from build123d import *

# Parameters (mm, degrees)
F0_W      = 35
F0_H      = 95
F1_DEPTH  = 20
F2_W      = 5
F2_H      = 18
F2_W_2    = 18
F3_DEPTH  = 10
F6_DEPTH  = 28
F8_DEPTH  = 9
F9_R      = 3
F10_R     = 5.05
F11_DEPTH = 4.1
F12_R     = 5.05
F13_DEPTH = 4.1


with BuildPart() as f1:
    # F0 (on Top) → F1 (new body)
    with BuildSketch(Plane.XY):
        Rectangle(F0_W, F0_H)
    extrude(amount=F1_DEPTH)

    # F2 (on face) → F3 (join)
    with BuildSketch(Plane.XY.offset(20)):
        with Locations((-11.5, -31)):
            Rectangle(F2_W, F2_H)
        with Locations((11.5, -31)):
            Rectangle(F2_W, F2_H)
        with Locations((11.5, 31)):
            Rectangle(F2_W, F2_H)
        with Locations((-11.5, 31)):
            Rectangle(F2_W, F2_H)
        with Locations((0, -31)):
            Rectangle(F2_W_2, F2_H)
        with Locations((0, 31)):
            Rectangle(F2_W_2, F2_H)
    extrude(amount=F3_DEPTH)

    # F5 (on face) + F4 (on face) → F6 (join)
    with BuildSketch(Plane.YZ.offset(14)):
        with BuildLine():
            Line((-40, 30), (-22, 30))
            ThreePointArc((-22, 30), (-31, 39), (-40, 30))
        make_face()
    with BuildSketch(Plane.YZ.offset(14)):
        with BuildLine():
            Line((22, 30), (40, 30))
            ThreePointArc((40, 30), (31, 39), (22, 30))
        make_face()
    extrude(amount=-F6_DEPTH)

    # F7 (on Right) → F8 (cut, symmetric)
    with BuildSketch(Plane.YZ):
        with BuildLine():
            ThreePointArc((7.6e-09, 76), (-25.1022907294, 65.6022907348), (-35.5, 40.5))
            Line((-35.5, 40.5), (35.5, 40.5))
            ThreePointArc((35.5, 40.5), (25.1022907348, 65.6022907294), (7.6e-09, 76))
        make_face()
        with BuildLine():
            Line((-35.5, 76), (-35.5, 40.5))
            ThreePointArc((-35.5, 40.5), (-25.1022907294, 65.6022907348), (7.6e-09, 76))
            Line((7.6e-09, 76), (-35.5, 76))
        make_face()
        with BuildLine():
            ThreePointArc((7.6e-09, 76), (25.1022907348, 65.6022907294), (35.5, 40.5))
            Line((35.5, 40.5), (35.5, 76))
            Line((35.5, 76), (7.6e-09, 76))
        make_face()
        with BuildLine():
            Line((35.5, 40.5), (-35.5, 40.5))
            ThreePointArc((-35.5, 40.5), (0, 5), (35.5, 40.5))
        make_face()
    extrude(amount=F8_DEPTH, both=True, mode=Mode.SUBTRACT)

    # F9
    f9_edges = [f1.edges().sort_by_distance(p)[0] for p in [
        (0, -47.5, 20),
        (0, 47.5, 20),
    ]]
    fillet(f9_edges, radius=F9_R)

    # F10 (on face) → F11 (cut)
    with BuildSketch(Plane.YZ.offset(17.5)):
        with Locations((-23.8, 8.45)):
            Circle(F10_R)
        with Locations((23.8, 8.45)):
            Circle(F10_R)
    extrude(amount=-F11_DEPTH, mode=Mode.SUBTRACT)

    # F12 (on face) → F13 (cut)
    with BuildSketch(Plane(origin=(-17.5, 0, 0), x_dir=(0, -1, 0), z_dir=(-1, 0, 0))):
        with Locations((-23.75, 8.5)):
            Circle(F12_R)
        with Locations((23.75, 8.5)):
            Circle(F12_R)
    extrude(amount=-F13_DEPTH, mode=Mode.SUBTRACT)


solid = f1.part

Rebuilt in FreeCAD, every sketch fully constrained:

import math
import FreeCAD as App
import Part
import Sketcher
Q = App.Units.Quantity


def edges_at(feature, points):
    """Names of the edges that pass closest to the given points."""
    edges = feature.Shape.Edges
    near = lambda p: min(range(len(edges)), key=lambda i: edges[i].distToShape(Part.Vertex(*p))[0])
    return sorted({f"Edge{near(p) + 1}" for p in points})


def add_polygon(sketch, points):
    """Adds a closed chain of lines whose ends are joined by coincident constraints."""
    first, n = sketch.GeometryCount, len(points)
    for a, b in zip(points, points[1:] + points[:1]):
        sketch.addGeometry(Part.LineSegment(App.Vector(*a, 0), App.Vector(*b, 0)), False)
    for i in range(n):
        sketch.addConstraint(Sketcher.Constraint("Coincident", first + i, 2, first + (i + 1) % n, 1))

doc = App.newDocument("Part")
body = doc.addObject("PartDesign::Body", "Body")

# Sketch on XY plane
sketch1 = body.newObject("Sketcher::SketchObject", "Sketch")
sketch1.AttachmentSupport = (doc.getObject("XY_Plane"), [""])
sketch1.MapMode = "FlatFace"
add_polygon(sketch1, [(-18, 48), (-18, -48), (18, -48), (18, 48)])  # lines 0-3
sketch1.addConstraint(Sketcher.Constraint("Vertical", 0))
sketch1.addConstraint(Sketcher.Constraint("Horizontal", 1))
sketch1.addConstraint(Sketcher.Constraint("Vertical", 2))
sketch1.addConstraint(Sketcher.Constraint("Horizontal", 3))
sketch1.addConstraint(Sketcher.Constraint("Symmetric", 0, 2, 2, 2, -1, 1))
sketch1.addConstraint(Sketcher.Constraint("DistanceX", 1, 1, 1, 2, Q("35 mm")))
sketch1.addConstraint(Sketcher.Constraint("DistanceY", 0, 2, 0, 1, Q("95 mm")))
pad1 = body.newObject("PartDesign::Pad", "Pad")
pad1.Profile = sketch1
pad1.Length = 20

# Sketch on XY plane
sketch2 = body.newObject("Sketcher::SketchObject", "Sketch001")
sketch2.AttachmentSupport = (doc.getObject("XY_Plane"), [""])
sketch2.MapMode = "FlatFace"
sketch2.AttachmentOffset = App.Placement(App.Vector(0, 0, 20), App.Rotation())
add_polygon(sketch2, [(-14, -22), (-14, -40), (14, -40), (14, -22)])  # lines 0-3
add_polygon(sketch2, [(14, 22), (14, 40), (-14, 40), (-14, 22)])  # lines 4-7
sketch2.addConstraint(Sketcher.Constraint("Vertical", 0))
sketch2.addConstraint(Sketcher.Constraint("Horizontal", 1))
sketch2.addConstraint(Sketcher.Constraint("Vertical", 2))
sketch2.addConstraint(Sketcher.Constraint("Horizontal", 3))
sketch2.addConstraint(Sketcher.Constraint("Vertical", 4))
sketch2.addConstraint(Sketcher.Constraint("Horizontal", 5))
sketch2.addConstraint(Sketcher.Constraint("Vertical", 6))
sketch2.addConstraint(Sketcher.Constraint("Horizontal", 7))
sketch2.addConstraint(Sketcher.Constraint("Symmetric", 0, 2, 4, 2, -1, 1))
sketch2.addConstraint(Sketcher.Constraint("Symmetric", 2, 2, 6, 2, -1, 1))
sketch2.addConstraint(Sketcher.Constraint("Vertical", 2, 2, 4, 2))
sketch2.addConstraint(Sketcher.Constraint("DistanceX", 1, 1, 1, 2, Q("28 mm")))
sketch2.addConstraint(Sketcher.Constraint("DistanceY", 0, 2, 0, 1, Q("18 mm")))
sketch2.addConstraint(Sketcher.Constraint("DistanceY", 0, 2, -1, 1, Q("40 mm")))
pad2 = body.newObject("PartDesign::Pad", "Pad001")
pad2.Profile = sketch2
pad2.Length = 10

# Sketch on YZ plane
sketch3 = body.newObject("Sketcher::SketchObject", "Sketch002")
sketch3.AttachmentSupport = (doc.getObject("YZ_Plane"), [""])
sketch3.MapMode = "FlatFace"
sketch3.AttachmentOffset = App.Placement(App.Vector(0, 0, 14), App.Rotation())
sketch3.addGeometry(Part.LineSegment(App.Vector(-40, 30, 0), App.Vector(-22, 30, 0)), False)
sketch3.addGeometry(Part.ArcOfCircle(Part.Circle(App.Vector(-31, 30, 0), App.Vector(0, 0, 1), 9), math.radians(0), math.radians(180)), False)
sketch3.addGeometry(Part.LineSegment(App.Vector(22, 30, 0), App.Vector(40, 30, 0)), False)
sketch3.addGeometry(Part.ArcOfCircle(Part.Circle(App.Vector(31, 30, 0), App.Vector(0, 0, 1), 9), math.radians(0), math.radians(180)), False)
sketch3.addConstraint(Sketcher.Constraint("Coincident", 0, 1, 1, 2))
sketch3.addConstraint(Sketcher.Constraint("Coincident", 1, 1, 0, 2))
sketch3.addConstraint(Sketcher.Constraint("Coincident", 2, 1, 3, 2))
sketch3.addConstraint(Sketcher.Constraint("Coincident", 3, 1, 2, 2))
sketch3.addConstraint(Sketcher.Constraint("Horizontal", 0))
sketch3.addConstraint(Sketcher.Constraint("Horizontal", 2))
sketch3.addConstraint(Sketcher.Constraint("Equal", 1, 3))
sketch3.addConstraint(Sketcher.Constraint("Symmetric", 1, 3, 3, 3, -2))
sketch3.addConstraint(Sketcher.Constraint("Horizontal", 3, 3, 0, 1))
sketch3.addConstraint(Sketcher.Constraint("Horizontal", 1, 1, 2, 1))
sketch3.addConstraint(Sketcher.Constraint("Radius", 1, Q("9 mm")))
sketch3.addConstraint(Sketcher.Constraint("DistanceX", 1, 3, -1, 1, Q("31 mm")))
sketch3.addConstraint(Sketcher.Constraint("DistanceY", -1, 1, 1, 3, Q("30 mm")))
pad3 = body.newObject("PartDesign::Pad", "Pad002")
pad3.Profile = sketch3
pad3.Length = 28
pad3.Reversed = True

# Sketch on YZ plane
sketch4 = body.newObject("Sketcher::SketchObject", "Sketch003")
sketch4.AttachmentSupport = (doc.getObject("YZ_Plane"), [""])
sketch4.MapMode = "FlatFace"
sketch4.addGeometry(Part.LineSegment(App.Vector(36, 40, 0), App.Vector(36, 76, 0)), False)
sketch4.addGeometry(Part.LineSegment(App.Vector(36, 76, 0), App.Vector(-36, 76, 0)), False)
sketch4.addGeometry(Part.LineSegment(App.Vector(-36, 76, 0), App.Vector(-36, 40, 0)), False)
sketch4.addGeometry(Part.ArcOfCircle(Part.Circle(App.Vector(0, 40, 0), App.Vector(0, 0, 1), 36), math.radians(180), math.radians(360)), False)
sketch4.addConstraint(Sketcher.Constraint("Coincident", 0, 2, 1, 1))
sketch4.addConstraint(Sketcher.Constraint("Coincident", 1, 2, 2, 1))
sketch4.addConstraint(Sketcher.Constraint("Tangent", 2, 2, 3, 1))
sketch4.addConstraint(Sketcher.Constraint("Tangent", 3, 2, 0, 1))
sketch4.addConstraint(Sketcher.Constraint("Vertical", 0))
sketch4.addConstraint(Sketcher.Constraint("Horizontal", 1))
sketch4.addConstraint(Sketcher.Constraint("Vertical", 2))
sketch4.addConstraint(Sketcher.Constraint("PointOnObject", 3, 3, -2))
sketch4.addConstraint(Sketcher.Constraint("Radius", 3, Q("35.5 mm")))
sketch4.addConstraint(Sketcher.Constraint("DistanceY", 0, 1, 0, 2, Q("35.5 mm")))
sketch4.addConstraint(Sketcher.Constraint("DistanceY", -1, 1, 0, 2, Q("76 mm")))
pocket1 = body.newObject("PartDesign::Pocket", "Pocket")
pocket1.Profile = sketch4
pocket1.Length = 18
pocket1.Midplane = True
doc.recompute()

fillet = body.newObject("PartDesign::Fillet", "Fillet")
fillet.Base = (pocket1, edges_at(pocket1, [(0, -47.5, 20), (0, 47.5, 20)]))
fillet.Radius = 3

# Sketch on YZ plane
sketch5 = body.newObject("Sketcher::SketchObject", "Sketch004")
sketch5.AttachmentSupport = (doc.getObject("YZ_Plane"), [""])
sketch5.MapMode = "FlatFace"
sketch5.AttachmentOffset = App.Placement(App.Vector(0, 0, 17.5), App.Rotation())
sketch5.addGeometry(Part.Circle(App.Vector(-24, 8, 0), App.Vector(0, 0, 1), 5), False)
sketch5.addGeometry(Part.Circle(App.Vector(24, 8, 0), App.Vector(0, 0, 1), 5), False)
sketch5.addConstraint(Sketcher.Constraint("Equal", 0, 1))
sketch5.addConstraint(Sketcher.Constraint("Symmetric", 0, 3, 1, 3, -2))
sketch5.addConstraint(Sketcher.Constraint("Diameter", 0, Q("10.1 mm")))
sketch5.addConstraint(Sketcher.Constraint("DistanceX", 0, 3, -1, 1, Q("23.8 mm")))
sketch5.addConstraint(Sketcher.Constraint("DistanceY", -1, 1, 0, 3, Q("8.45 mm")))
pocket2 = body.newObject("PartDesign::Pocket", "Pocket001")
pocket2.Profile = sketch5
pocket2.Length = 4.1

# Sketch on YZ plane
sketch6 = body.newObject("Sketcher::SketchObject", "Sketch005")
sketch6.AttachmentSupport = (doc.getObject("YZ_Plane"), [""])
sketch6.MapMode = "FlatFace"
sketch6.AttachmentOffset = App.Placement(App.Vector(0, 0, -17.5), App.Rotation())
sketch6.addGeometry(Part.Circle(App.Vector(24, 8, 0), App.Vector(0, 0, 1), 5), False)
sketch6.addGeometry(Part.Circle(App.Vector(-24, 8, 0), App.Vector(0, 0, 1), 5), False)
sketch6.addConstraint(Sketcher.Constraint("Equal", 0, 1))
sketch6.addConstraint(Sketcher.Constraint("Symmetric", 0, 3, 1, 3, -2))
sketch6.addConstraint(Sketcher.Constraint("Diameter", 0, Q("10.1 mm")))
sketch6.addConstraint(Sketcher.Constraint("DistanceY", -1, 1, 0, 3, Q("8.5 mm")))
sketch6.addConstraint(Sketcher.Constraint("DistanceX", 1, 3, 0, 3, Q("47.5 mm")))
pocket3 = body.newObject("PartDesign::Pocket", "Pocket002")
pocket3.Profile = sketch6
pocket3.Length = 4.1
pocket3.Reversed = True

doc.recompute()
